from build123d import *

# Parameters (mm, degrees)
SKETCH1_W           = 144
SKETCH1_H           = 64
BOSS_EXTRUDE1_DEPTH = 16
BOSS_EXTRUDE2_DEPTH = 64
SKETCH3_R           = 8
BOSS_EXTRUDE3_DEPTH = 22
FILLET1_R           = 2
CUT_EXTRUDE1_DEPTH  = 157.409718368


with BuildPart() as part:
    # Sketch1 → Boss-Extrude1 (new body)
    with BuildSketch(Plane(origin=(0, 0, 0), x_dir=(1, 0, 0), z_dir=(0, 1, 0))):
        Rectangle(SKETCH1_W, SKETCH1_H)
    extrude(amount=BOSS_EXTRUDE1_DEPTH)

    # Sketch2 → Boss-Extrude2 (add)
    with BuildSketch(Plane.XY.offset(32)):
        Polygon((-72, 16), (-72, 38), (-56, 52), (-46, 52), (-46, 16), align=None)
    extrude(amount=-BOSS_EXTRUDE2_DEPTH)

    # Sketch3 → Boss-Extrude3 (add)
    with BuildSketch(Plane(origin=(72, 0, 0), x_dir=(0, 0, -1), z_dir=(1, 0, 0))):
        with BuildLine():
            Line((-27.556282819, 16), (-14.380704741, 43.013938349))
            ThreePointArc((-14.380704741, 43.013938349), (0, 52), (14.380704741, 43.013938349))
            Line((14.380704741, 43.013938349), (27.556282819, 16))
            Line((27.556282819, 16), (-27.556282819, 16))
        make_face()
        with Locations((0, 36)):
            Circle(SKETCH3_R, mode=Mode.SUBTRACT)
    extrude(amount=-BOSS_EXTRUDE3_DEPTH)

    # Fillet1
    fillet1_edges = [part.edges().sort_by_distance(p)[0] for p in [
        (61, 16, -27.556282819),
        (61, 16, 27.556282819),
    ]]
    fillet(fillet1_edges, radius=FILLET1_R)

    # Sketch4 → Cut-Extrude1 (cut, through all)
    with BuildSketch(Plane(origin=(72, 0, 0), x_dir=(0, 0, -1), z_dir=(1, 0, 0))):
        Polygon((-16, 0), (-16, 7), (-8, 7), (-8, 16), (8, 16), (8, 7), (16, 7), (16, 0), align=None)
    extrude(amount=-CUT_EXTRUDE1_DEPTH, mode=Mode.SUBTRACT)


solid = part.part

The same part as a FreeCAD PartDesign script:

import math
import FreeCAD as App
import Part
import Sketcher
Q = App.Units.Quantity


def edges_at(feature, points):
    """Names of the edges that pass closest to the given points."""
    edges = feature.Shape.Edges
    near = lambda p: min(range(len(edges)), key=lambda i: edges[i].distToShape(Part.Vertex(*p))[0])
    return sorted({f"Edge{near(p) + 1}" for p in points})


def add_polygon(sketch, points):
    """Adds a closed chain of lines whose ends are joined by coincident constraints."""
    first, n = sketch.GeometryCount, len(points)
    for a, b in zip(points, points[1:] + points[:1]):
        sketch.addGeometry(Part.LineSegment(App.Vector(*a, 0), App.Vector(*b, 0)), False)
    for i in range(n):
        sketch.addConstraint(Sketcher.Constraint("Coincident", first + i, 2, first + (i + 1) % n, 1))

doc = App.newDocument("Part")
body = doc.addObject("PartDesign::Body", "Body")

# Sketch on XZ plane
sketch1 = body.newObject("Sketcher::SketchObject", "Sketch")
sketch1.AttachmentSupport = (doc.getObject("XZ_Plane"), [""])
sketch1.MapMode = "FlatFace"
add_polygon(sketch1, [(-72, -32), (-72, 32), (72, 32), (72, -32)])  # lines 0-3
sketch1.addConstraint(Sketcher.Constraint("Vertical", 0))
sketch1.addConstraint(Sketcher.Constraint("Horizontal", 1))
sketch1.addConstraint(Sketcher.Constraint("Vertical", 2))
sketch1.addConstraint(Sketcher.Constraint("Horizontal", 3))
sketch1.addConstraint(Sketcher.Constraint("Symmetric", 0, 2, 2, 2, -1, 1))
sketch1.addConstraint(Sketcher.Constraint("DistanceX", 1, 1, 1, 2, Q("144 mm")))
sketch1.addConstraint(Sketcher.Constraint("DistanceY", 0, 1, 0, 2, Q("64 mm")))
pad1 = body.newObject("PartDesign::Pad", "Pad")
pad1.Profile = sketch1
pad1.Length = 16
pad1.Reversed = True

# Sketch on XY plane
sketch2 = body.newObject("Sketcher::SketchObject", "Sketch001")
sketch2.AttachmentSupport = (doc.getObject("XY_Plane"), [""])
sketch2.MapMode = "FlatFace"
sketch2.AttachmentOffset = App.Placement(App.Vector(0, 0, 32), App.Rotation())
add_polygon(sketch2, [(-72, 38), (-72, 16), (-46, 16), (-46, 52), (-56, 52)])  # lines 0-4
sketch2.addConstraint(Sketcher.Constraint("Vertical", 0))
sketch2.addConstraint(Sketcher.Constraint("Horizontal", 1))
sketch2.addConstraint(Sketcher.Constraint("Vertical", 2))
sketch2.addConstraint(Sketcher.Constraint("Horizontal", 3))
sketch2.addConstraint(Sketcher.Constraint("DistanceX", 1, 1, 1, 2, Q("26 mm")))
sketch2.addConstraint(Sketcher.Constraint("DistanceX", 3, 2, 3, 1, Q("10 mm")))
sketch2.addConstraint(Sketcher.Constraint("DistanceY", 0, 2, 0, 1, Q("22 mm")))
sketch2.addConstraint(Sketcher.Constraint("DistanceY", 2, 1, 2, 2, Q("36 mm")))
sketch2.addConstraint(Sketcher.Constraint("DistanceX", 0, 2, -1, 1, Q("72 mm")))
sketch2.addConstraint(Sketcher.Constraint("DistanceY", -1, 1, 0, 2, Q("16 mm")))
pad2 = body.newObject("PartDesign::Pad", "Pad001")
pad2.Profile = sketch2
pad2.Length = 64
pad2.Reversed = True

# Sketch on YZ plane
sketch3 = body.newObject("Sketcher::SketchObject", "Sketch002")
sketch3.AttachmentSupport = (doc.getObject("YZ_Plane"), [""])
sketch3.MapMode = "FlatFace"
sketch3.AttachmentOffset = App.Placement(App.Vector(0, 0, 72), App.Rotation())
sketch3.addGeometry(Part.LineSegment(App.Vector(43, 14, 0), App.Vector(16, 28, 0)), False)
sketch3.addGeometry(Part.LineSegment(App.Vector(16, 28, 0), App.Vector(16, -28, 0)), False)
sketch3.addGeometry(Part.LineSegment(App.Vector(16, -28, 0), App.Vector(43, -14, 0)), False)
sketch3.addGeometry(Part.ArcOfCircle(Part.Circle(App.Vector(36, 0, 0), App.Vector(0, 0, 1), 16), math.radians(-64), math.radians(64)), False)
sketch3.addGeometry(Part.Circle(App.Vector(36, 0, 0), App.Vector(0, 0, 1), 8), False)
sketch3.addConstraint(Sketcher.Constraint("Coincident", 0, 2, 1, 1))
sketch3.addConstraint(Sketcher.Constraint("Coincident", 1, 2, 2, 1))
sketch3.addConstraint(Sketcher.Constraint("Tangent", 2, 2, 3, 1))
sketch3.addConstraint(Sketcher.Constraint("Tangent", 3, 2, 0, 1))
sketch3.addConstraint(Sketcher.Constraint("Vertical", 1))
sketch3.addConstraint(Sketcher.Constraint("Coincident", 4, 3, 3, 3))
sketch3.addConstraint(Sketcher.Constraint("Symmetric", 2, 2, 3, 2, -1))
sketch3.addConstraint(Sketcher.Constraint("Diameter", 4, Q("16 mm")))
sketch3.addConstraint(Sketcher.Constraint("Radius", 3, Q("16 mm")))
sketch3.addConstraint(Sketcher.Constraint("Angle", 0, Q("154 deg")))
sketch3.addConstraint(Sketcher.Constraint("DistanceX", -1, 1, 3, 3, Q("36 mm")))
sketch3.addConstraint(Sketcher.Constraint("DistanceX", -1, 1, 0, 2, Q("16 mm")))
pad3 = body.newObject("PartDesign::Pad", "Pad002")
pad3.Profile = sketch3
pad3.Length = 22
pad3.Reversed = True
doc.recompute()

fillet = body.newObject("PartDesign::Fillet", "Fillet")
fillet.Base = (pad3, edges_at(pad3, [(61, 16, -27.556), (61, 16, 27.556)]))
fillet.Radius = 2

# Sketch on YZ plane
sketch4 = body.newObject("Sketcher::SketchObject", "Sketch003")
sketch4.AttachmentSupport = (doc.getObject("YZ_Plane"), [""])
sketch4.MapMode = "FlatFace"
sketch4.AttachmentOffset = App.Placement(App.Vector(0, 0, 72), App.Rotation())
add_polygon(sketch4, [(7, 16), (0, 16), (0, -16), (7, -16), (7, -8), (16, -8), (16, 8), (7, 8)])  # lines 0-7
sketch4.addConstraint(Sketcher.Constraint("Horizontal", 0))
sketch4.addConstraint(Sketcher.Constraint("Vertical", 1))
sketch4.addConstraint(Sketcher.Constraint("Horizontal", 2))
sketch4.addConstraint(Sketcher.Constraint("Vertical", 3))
sketch4.addConstraint(Sketcher.Constraint("Horizontal", 4))
sketch4.addConstraint(Sketcher.Constraint("Vertical", 5))
sketch4.addConstraint(Sketcher.Constraint("Horizontal", 6))
sketch4.addConstraint(Sketcher.Constraint("Vertical", 7))
sketch4.addConstraint(Sketcher.Constraint("Symmetric", 0, 2, 1, 2, -1, 1))
sketch4.addConstraint(Sketcher.Constraint("Symmetric", 3, 2, 6, 2, -1))
sketch4.addConstraint(Sketcher.Constraint("DistanceX", 0, 2, 0, 1, Q("7 mm")))
sketch4.addConstraint(Sketcher.Constraint("DistanceX", 4, 1, 4, 2, Q("9 mm")))
sketch4.addConstraint(Sketcher.Constraint("DistanceY", 1, 2, 1, 1, Q("32 mm")))
sketch4.addConstraint(Sketcher.Constraint("DistanceY", 3, 1, 3, 2, Q("8 mm")))
pocket1 = body.newObject("PartDesign::Pocket", "Pocket")
pocket1.Profile = sketch4
pocket1.Type = "ThroughAll"

doc.recompute()
